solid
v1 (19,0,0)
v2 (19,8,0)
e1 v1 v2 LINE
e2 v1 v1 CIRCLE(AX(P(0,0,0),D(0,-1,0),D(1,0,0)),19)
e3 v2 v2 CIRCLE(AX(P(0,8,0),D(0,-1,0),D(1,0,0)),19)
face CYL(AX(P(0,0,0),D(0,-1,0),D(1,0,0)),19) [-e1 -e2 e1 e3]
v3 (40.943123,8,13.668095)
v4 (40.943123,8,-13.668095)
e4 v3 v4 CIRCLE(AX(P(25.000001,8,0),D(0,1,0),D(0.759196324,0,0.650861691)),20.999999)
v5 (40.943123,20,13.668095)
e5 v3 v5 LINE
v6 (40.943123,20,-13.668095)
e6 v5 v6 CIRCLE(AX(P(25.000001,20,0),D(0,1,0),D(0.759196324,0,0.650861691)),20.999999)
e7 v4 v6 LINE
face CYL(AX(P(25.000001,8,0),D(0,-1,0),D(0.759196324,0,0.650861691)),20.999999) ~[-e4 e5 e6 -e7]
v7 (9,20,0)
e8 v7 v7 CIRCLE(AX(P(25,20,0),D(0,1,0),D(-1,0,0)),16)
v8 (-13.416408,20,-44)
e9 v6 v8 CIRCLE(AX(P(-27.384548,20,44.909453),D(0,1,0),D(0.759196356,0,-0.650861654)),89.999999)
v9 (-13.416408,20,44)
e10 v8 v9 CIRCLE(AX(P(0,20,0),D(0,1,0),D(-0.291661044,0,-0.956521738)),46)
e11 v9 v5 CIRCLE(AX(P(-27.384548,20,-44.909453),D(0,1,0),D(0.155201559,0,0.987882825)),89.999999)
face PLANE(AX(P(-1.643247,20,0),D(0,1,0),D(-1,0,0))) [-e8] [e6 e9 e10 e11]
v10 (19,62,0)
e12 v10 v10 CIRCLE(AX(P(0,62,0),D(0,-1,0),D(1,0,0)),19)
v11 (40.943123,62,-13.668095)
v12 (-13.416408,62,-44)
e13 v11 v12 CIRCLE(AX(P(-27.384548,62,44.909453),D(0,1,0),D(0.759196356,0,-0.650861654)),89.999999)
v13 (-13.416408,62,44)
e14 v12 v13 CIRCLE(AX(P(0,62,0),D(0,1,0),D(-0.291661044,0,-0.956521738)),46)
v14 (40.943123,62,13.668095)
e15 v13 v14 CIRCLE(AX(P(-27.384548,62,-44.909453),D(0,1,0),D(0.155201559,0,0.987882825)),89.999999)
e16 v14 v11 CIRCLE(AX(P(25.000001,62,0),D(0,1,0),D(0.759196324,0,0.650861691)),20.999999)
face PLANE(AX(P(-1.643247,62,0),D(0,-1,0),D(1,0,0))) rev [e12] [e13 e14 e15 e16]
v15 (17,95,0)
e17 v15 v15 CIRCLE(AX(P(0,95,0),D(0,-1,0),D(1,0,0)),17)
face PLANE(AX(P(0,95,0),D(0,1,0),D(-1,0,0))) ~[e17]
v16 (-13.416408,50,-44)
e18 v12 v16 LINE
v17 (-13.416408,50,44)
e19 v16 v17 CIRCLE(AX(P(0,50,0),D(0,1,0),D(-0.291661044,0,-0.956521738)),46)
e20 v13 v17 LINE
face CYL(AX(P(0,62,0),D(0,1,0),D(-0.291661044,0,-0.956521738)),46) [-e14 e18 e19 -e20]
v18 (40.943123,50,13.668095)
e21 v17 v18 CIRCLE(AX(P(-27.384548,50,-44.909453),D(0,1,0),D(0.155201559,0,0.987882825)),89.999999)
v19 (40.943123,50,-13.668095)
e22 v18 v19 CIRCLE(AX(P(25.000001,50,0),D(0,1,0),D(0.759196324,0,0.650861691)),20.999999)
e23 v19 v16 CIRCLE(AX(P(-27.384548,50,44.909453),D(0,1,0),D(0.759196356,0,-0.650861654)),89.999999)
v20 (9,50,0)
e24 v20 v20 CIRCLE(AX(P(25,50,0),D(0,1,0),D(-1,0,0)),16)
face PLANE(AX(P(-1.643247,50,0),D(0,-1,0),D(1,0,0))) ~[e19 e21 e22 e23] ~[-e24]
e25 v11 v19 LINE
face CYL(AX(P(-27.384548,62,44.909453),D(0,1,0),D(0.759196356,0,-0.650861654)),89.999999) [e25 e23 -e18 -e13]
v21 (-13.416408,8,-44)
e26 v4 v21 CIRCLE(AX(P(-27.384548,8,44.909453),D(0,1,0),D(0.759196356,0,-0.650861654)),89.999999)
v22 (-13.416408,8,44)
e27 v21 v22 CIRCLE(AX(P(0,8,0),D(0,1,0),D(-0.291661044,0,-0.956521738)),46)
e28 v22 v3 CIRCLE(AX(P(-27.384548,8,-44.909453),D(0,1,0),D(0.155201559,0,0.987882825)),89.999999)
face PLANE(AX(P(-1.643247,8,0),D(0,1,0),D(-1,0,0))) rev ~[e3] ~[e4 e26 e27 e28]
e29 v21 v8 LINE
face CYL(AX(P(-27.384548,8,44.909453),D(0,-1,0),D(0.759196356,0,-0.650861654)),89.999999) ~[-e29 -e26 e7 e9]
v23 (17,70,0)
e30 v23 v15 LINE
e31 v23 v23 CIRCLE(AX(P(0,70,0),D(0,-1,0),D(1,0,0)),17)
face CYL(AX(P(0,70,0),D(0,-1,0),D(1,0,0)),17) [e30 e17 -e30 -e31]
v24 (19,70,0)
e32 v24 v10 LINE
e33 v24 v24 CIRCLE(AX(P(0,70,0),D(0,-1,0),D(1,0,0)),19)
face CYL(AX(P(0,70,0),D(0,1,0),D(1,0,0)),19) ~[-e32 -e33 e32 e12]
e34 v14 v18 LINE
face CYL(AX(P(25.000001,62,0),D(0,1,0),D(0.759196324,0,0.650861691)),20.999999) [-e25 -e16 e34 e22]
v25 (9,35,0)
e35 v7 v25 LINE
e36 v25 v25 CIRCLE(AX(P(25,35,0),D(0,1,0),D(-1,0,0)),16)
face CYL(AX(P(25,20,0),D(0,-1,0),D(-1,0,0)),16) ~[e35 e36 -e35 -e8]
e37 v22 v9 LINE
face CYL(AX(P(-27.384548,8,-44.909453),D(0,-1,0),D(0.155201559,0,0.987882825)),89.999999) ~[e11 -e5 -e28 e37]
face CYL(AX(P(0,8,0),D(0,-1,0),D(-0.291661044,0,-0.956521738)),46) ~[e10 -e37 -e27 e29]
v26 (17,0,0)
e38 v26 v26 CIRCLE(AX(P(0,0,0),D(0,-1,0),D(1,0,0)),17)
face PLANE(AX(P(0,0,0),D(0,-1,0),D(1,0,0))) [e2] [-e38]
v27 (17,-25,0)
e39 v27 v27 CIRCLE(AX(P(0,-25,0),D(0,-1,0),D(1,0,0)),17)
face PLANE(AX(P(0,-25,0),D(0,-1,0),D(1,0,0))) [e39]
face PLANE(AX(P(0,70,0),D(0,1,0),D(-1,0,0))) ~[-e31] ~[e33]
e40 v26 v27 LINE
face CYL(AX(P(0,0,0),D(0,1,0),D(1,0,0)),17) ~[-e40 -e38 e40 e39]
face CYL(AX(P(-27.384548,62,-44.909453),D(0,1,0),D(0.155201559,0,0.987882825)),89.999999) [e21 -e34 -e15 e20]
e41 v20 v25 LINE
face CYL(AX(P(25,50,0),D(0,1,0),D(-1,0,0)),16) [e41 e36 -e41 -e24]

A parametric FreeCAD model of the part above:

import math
import FreeCAD as App
import Part
import Sketcher

V = App.Vector
Q = App.Units.Quantity

doc = App.newDocument("Part")
body = doc.addObject("PartDesign::Body", "Body")

sketch1 = body.newObject("Sketcher::SketchObject", "Sketch")
sketch1.AttachmentSupport = (doc.getObject("XZ_Plane"), [""])
sketch1.MapMode = "FlatFace"
sketch1.addGeometry(Part.Circle(V(0, 0, 0), V(0, 0, 1), 17), False)
sketch1.addConstraint([
    Sketcher.Constraint("Coincident", 0, 3, -1, 1),
    Sketcher.Constraint("Diameter", 0, Q("34 mm")),
])
pad1 = body.newObject("PartDesign::Pad", "Pad")
pad1.Profile = sketch1
pad1.Length = 25

sketch2 = body.newObject("Sketcher::SketchObject", "Sketch001")
sketch2.AttachmentSupport = (doc.getObject("XZ_Plane"), [""])
sketch2.MapMode = "FlatFace"
sketch2.addGeometry(Part.Circle(V(0, 0, 0), V(0, 0, 1), 19), False)
sketch2.addConstraint([
    Sketcher.Constraint("Coincident", 0, 3, -1, 1),
    Sketcher.Constraint("Diameter", 0, Q("38 mm")),
])
pad2 = body.newObject("PartDesign::Pad", "Pad001")
pad2.Profile = sketch2
pad2.Length = 8
pad2.Reversed = True

sketch3 = body.newObject("Sketcher::SketchObject", "Sketch002")
sketch3.AttachmentSupport = (doc.getObject("XZ_Plane"), [""])
sketch3.MapMode = "FlatFace"
sketch3.AttachmentOffset = App.Placement(V(0, 0, -8), App.Rotation())
sketch3.addGeometry([
    Part.ArcOfCircle(Part.Circle(V(-27, 45, 0), V(0, 0, 1), 90), math.radians(-81), math.radians(-41)),
    Part.ArcOfCircle(Part.Circle(V(0, 0, 0), V(0, 0, 1), 46), math.radians(107), math.radians(253)),
    Part.ArcOfCircle(Part.Circle(V(-27, -45, 0), V(0, 0, 1), 90), math.radians(41), math.radians(81)),
    Part.ArcOfCircle(Part.Circle(V(25, 0, 0), V(0, 0, 1), 21), math.radians(-41), math.radians(41)),
], False)
sketch3.addConstraint([
    Sketcher.Constraint("Coincident", 0, 1, 1, 2),
    Sketcher.Constraint("Coincident", 1, 1, 2, 2),
    Sketcher.Constraint("Tangent", 2, 1, 3, 2),
    Sketcher.Constraint("Tangent", 3, 1, 0, 2),
    Sketcher.Constraint("Coincident", 1, 3, -1, 1),
    Sketcher.Constraint("Equal", 0, 2),
    Sketcher.Constraint("Symmetric", 0, 3, 2, 3, -1),
    Sketcher.Constraint("Radius", 0, Q("89.999999 mm")),
    Sketcher.Constraint("Radius", 1, Q("46 mm")),
    Sketcher.Constraint("Radius", 3, Q("20.999999 mm")),
    Sketcher.Constraint("DistanceX", -1, 1, 3, 3, Q("25.000001 mm")),
    Sketcher.Constraint("DistanceY", 0, 1, -1, 1, Q("44 mm")),
])
pad3 = body.newObject("PartDesign::Pad", "Pad002")
pad3.Profile = sketch3
pad3.Length = 12
pad3.Reversed = True

sketch4 = body.newObject("Sketcher::SketchObject", "Sketch003")
sketch4.AttachmentSupport = (doc.getObject("XZ_Plane"), [""])
sketch4.MapMode = "FlatFace"
sketch4.AttachmentOffset = App.Placement(V(0, 0, -20), App.Rotation())
sketch4.addGeometry(Part.Circle(V(25, 0, 0), V(0, 0, 1), 16), False)
sketch4.addConstraint([
    Sketcher.Constraint("PointOnObject", 0, 3, -1),
    Sketcher.Constraint("Diameter", 0, Q("32 mm")),
    Sketcher.Constraint("DistanceX", -1, 1, 0, 3, Q("25 mm")),
])
pad4 = body.newObject("PartDesign::Pad", "Pad003")
pad4.Profile = sketch4
pad4.Length = 15
pad4.Reversed = True
body2 = doc.addObject("PartDesign::Body", "Body001")
doc.recompute()

body2.BaseFeature = body
doc.recompute()

mirroring = doc.addObject("Part::Mirroring", "Mirroring")
mirroring.Source = body
mirroring.Base = V(25, 35, 0)
mirroring.Normal = V(0, 1, 0)
body3 = doc.addObject("PartDesign::Body", "Body002")
body3.BaseFeature = mirroring
boolean = body2.newObject("PartDesign::Boolean", "Boolean")
boolean.Type = "Fuse"
boolean.addObjects([body3])
doc.recompute()
mirroring.Visibility = False

doc.recompute()
